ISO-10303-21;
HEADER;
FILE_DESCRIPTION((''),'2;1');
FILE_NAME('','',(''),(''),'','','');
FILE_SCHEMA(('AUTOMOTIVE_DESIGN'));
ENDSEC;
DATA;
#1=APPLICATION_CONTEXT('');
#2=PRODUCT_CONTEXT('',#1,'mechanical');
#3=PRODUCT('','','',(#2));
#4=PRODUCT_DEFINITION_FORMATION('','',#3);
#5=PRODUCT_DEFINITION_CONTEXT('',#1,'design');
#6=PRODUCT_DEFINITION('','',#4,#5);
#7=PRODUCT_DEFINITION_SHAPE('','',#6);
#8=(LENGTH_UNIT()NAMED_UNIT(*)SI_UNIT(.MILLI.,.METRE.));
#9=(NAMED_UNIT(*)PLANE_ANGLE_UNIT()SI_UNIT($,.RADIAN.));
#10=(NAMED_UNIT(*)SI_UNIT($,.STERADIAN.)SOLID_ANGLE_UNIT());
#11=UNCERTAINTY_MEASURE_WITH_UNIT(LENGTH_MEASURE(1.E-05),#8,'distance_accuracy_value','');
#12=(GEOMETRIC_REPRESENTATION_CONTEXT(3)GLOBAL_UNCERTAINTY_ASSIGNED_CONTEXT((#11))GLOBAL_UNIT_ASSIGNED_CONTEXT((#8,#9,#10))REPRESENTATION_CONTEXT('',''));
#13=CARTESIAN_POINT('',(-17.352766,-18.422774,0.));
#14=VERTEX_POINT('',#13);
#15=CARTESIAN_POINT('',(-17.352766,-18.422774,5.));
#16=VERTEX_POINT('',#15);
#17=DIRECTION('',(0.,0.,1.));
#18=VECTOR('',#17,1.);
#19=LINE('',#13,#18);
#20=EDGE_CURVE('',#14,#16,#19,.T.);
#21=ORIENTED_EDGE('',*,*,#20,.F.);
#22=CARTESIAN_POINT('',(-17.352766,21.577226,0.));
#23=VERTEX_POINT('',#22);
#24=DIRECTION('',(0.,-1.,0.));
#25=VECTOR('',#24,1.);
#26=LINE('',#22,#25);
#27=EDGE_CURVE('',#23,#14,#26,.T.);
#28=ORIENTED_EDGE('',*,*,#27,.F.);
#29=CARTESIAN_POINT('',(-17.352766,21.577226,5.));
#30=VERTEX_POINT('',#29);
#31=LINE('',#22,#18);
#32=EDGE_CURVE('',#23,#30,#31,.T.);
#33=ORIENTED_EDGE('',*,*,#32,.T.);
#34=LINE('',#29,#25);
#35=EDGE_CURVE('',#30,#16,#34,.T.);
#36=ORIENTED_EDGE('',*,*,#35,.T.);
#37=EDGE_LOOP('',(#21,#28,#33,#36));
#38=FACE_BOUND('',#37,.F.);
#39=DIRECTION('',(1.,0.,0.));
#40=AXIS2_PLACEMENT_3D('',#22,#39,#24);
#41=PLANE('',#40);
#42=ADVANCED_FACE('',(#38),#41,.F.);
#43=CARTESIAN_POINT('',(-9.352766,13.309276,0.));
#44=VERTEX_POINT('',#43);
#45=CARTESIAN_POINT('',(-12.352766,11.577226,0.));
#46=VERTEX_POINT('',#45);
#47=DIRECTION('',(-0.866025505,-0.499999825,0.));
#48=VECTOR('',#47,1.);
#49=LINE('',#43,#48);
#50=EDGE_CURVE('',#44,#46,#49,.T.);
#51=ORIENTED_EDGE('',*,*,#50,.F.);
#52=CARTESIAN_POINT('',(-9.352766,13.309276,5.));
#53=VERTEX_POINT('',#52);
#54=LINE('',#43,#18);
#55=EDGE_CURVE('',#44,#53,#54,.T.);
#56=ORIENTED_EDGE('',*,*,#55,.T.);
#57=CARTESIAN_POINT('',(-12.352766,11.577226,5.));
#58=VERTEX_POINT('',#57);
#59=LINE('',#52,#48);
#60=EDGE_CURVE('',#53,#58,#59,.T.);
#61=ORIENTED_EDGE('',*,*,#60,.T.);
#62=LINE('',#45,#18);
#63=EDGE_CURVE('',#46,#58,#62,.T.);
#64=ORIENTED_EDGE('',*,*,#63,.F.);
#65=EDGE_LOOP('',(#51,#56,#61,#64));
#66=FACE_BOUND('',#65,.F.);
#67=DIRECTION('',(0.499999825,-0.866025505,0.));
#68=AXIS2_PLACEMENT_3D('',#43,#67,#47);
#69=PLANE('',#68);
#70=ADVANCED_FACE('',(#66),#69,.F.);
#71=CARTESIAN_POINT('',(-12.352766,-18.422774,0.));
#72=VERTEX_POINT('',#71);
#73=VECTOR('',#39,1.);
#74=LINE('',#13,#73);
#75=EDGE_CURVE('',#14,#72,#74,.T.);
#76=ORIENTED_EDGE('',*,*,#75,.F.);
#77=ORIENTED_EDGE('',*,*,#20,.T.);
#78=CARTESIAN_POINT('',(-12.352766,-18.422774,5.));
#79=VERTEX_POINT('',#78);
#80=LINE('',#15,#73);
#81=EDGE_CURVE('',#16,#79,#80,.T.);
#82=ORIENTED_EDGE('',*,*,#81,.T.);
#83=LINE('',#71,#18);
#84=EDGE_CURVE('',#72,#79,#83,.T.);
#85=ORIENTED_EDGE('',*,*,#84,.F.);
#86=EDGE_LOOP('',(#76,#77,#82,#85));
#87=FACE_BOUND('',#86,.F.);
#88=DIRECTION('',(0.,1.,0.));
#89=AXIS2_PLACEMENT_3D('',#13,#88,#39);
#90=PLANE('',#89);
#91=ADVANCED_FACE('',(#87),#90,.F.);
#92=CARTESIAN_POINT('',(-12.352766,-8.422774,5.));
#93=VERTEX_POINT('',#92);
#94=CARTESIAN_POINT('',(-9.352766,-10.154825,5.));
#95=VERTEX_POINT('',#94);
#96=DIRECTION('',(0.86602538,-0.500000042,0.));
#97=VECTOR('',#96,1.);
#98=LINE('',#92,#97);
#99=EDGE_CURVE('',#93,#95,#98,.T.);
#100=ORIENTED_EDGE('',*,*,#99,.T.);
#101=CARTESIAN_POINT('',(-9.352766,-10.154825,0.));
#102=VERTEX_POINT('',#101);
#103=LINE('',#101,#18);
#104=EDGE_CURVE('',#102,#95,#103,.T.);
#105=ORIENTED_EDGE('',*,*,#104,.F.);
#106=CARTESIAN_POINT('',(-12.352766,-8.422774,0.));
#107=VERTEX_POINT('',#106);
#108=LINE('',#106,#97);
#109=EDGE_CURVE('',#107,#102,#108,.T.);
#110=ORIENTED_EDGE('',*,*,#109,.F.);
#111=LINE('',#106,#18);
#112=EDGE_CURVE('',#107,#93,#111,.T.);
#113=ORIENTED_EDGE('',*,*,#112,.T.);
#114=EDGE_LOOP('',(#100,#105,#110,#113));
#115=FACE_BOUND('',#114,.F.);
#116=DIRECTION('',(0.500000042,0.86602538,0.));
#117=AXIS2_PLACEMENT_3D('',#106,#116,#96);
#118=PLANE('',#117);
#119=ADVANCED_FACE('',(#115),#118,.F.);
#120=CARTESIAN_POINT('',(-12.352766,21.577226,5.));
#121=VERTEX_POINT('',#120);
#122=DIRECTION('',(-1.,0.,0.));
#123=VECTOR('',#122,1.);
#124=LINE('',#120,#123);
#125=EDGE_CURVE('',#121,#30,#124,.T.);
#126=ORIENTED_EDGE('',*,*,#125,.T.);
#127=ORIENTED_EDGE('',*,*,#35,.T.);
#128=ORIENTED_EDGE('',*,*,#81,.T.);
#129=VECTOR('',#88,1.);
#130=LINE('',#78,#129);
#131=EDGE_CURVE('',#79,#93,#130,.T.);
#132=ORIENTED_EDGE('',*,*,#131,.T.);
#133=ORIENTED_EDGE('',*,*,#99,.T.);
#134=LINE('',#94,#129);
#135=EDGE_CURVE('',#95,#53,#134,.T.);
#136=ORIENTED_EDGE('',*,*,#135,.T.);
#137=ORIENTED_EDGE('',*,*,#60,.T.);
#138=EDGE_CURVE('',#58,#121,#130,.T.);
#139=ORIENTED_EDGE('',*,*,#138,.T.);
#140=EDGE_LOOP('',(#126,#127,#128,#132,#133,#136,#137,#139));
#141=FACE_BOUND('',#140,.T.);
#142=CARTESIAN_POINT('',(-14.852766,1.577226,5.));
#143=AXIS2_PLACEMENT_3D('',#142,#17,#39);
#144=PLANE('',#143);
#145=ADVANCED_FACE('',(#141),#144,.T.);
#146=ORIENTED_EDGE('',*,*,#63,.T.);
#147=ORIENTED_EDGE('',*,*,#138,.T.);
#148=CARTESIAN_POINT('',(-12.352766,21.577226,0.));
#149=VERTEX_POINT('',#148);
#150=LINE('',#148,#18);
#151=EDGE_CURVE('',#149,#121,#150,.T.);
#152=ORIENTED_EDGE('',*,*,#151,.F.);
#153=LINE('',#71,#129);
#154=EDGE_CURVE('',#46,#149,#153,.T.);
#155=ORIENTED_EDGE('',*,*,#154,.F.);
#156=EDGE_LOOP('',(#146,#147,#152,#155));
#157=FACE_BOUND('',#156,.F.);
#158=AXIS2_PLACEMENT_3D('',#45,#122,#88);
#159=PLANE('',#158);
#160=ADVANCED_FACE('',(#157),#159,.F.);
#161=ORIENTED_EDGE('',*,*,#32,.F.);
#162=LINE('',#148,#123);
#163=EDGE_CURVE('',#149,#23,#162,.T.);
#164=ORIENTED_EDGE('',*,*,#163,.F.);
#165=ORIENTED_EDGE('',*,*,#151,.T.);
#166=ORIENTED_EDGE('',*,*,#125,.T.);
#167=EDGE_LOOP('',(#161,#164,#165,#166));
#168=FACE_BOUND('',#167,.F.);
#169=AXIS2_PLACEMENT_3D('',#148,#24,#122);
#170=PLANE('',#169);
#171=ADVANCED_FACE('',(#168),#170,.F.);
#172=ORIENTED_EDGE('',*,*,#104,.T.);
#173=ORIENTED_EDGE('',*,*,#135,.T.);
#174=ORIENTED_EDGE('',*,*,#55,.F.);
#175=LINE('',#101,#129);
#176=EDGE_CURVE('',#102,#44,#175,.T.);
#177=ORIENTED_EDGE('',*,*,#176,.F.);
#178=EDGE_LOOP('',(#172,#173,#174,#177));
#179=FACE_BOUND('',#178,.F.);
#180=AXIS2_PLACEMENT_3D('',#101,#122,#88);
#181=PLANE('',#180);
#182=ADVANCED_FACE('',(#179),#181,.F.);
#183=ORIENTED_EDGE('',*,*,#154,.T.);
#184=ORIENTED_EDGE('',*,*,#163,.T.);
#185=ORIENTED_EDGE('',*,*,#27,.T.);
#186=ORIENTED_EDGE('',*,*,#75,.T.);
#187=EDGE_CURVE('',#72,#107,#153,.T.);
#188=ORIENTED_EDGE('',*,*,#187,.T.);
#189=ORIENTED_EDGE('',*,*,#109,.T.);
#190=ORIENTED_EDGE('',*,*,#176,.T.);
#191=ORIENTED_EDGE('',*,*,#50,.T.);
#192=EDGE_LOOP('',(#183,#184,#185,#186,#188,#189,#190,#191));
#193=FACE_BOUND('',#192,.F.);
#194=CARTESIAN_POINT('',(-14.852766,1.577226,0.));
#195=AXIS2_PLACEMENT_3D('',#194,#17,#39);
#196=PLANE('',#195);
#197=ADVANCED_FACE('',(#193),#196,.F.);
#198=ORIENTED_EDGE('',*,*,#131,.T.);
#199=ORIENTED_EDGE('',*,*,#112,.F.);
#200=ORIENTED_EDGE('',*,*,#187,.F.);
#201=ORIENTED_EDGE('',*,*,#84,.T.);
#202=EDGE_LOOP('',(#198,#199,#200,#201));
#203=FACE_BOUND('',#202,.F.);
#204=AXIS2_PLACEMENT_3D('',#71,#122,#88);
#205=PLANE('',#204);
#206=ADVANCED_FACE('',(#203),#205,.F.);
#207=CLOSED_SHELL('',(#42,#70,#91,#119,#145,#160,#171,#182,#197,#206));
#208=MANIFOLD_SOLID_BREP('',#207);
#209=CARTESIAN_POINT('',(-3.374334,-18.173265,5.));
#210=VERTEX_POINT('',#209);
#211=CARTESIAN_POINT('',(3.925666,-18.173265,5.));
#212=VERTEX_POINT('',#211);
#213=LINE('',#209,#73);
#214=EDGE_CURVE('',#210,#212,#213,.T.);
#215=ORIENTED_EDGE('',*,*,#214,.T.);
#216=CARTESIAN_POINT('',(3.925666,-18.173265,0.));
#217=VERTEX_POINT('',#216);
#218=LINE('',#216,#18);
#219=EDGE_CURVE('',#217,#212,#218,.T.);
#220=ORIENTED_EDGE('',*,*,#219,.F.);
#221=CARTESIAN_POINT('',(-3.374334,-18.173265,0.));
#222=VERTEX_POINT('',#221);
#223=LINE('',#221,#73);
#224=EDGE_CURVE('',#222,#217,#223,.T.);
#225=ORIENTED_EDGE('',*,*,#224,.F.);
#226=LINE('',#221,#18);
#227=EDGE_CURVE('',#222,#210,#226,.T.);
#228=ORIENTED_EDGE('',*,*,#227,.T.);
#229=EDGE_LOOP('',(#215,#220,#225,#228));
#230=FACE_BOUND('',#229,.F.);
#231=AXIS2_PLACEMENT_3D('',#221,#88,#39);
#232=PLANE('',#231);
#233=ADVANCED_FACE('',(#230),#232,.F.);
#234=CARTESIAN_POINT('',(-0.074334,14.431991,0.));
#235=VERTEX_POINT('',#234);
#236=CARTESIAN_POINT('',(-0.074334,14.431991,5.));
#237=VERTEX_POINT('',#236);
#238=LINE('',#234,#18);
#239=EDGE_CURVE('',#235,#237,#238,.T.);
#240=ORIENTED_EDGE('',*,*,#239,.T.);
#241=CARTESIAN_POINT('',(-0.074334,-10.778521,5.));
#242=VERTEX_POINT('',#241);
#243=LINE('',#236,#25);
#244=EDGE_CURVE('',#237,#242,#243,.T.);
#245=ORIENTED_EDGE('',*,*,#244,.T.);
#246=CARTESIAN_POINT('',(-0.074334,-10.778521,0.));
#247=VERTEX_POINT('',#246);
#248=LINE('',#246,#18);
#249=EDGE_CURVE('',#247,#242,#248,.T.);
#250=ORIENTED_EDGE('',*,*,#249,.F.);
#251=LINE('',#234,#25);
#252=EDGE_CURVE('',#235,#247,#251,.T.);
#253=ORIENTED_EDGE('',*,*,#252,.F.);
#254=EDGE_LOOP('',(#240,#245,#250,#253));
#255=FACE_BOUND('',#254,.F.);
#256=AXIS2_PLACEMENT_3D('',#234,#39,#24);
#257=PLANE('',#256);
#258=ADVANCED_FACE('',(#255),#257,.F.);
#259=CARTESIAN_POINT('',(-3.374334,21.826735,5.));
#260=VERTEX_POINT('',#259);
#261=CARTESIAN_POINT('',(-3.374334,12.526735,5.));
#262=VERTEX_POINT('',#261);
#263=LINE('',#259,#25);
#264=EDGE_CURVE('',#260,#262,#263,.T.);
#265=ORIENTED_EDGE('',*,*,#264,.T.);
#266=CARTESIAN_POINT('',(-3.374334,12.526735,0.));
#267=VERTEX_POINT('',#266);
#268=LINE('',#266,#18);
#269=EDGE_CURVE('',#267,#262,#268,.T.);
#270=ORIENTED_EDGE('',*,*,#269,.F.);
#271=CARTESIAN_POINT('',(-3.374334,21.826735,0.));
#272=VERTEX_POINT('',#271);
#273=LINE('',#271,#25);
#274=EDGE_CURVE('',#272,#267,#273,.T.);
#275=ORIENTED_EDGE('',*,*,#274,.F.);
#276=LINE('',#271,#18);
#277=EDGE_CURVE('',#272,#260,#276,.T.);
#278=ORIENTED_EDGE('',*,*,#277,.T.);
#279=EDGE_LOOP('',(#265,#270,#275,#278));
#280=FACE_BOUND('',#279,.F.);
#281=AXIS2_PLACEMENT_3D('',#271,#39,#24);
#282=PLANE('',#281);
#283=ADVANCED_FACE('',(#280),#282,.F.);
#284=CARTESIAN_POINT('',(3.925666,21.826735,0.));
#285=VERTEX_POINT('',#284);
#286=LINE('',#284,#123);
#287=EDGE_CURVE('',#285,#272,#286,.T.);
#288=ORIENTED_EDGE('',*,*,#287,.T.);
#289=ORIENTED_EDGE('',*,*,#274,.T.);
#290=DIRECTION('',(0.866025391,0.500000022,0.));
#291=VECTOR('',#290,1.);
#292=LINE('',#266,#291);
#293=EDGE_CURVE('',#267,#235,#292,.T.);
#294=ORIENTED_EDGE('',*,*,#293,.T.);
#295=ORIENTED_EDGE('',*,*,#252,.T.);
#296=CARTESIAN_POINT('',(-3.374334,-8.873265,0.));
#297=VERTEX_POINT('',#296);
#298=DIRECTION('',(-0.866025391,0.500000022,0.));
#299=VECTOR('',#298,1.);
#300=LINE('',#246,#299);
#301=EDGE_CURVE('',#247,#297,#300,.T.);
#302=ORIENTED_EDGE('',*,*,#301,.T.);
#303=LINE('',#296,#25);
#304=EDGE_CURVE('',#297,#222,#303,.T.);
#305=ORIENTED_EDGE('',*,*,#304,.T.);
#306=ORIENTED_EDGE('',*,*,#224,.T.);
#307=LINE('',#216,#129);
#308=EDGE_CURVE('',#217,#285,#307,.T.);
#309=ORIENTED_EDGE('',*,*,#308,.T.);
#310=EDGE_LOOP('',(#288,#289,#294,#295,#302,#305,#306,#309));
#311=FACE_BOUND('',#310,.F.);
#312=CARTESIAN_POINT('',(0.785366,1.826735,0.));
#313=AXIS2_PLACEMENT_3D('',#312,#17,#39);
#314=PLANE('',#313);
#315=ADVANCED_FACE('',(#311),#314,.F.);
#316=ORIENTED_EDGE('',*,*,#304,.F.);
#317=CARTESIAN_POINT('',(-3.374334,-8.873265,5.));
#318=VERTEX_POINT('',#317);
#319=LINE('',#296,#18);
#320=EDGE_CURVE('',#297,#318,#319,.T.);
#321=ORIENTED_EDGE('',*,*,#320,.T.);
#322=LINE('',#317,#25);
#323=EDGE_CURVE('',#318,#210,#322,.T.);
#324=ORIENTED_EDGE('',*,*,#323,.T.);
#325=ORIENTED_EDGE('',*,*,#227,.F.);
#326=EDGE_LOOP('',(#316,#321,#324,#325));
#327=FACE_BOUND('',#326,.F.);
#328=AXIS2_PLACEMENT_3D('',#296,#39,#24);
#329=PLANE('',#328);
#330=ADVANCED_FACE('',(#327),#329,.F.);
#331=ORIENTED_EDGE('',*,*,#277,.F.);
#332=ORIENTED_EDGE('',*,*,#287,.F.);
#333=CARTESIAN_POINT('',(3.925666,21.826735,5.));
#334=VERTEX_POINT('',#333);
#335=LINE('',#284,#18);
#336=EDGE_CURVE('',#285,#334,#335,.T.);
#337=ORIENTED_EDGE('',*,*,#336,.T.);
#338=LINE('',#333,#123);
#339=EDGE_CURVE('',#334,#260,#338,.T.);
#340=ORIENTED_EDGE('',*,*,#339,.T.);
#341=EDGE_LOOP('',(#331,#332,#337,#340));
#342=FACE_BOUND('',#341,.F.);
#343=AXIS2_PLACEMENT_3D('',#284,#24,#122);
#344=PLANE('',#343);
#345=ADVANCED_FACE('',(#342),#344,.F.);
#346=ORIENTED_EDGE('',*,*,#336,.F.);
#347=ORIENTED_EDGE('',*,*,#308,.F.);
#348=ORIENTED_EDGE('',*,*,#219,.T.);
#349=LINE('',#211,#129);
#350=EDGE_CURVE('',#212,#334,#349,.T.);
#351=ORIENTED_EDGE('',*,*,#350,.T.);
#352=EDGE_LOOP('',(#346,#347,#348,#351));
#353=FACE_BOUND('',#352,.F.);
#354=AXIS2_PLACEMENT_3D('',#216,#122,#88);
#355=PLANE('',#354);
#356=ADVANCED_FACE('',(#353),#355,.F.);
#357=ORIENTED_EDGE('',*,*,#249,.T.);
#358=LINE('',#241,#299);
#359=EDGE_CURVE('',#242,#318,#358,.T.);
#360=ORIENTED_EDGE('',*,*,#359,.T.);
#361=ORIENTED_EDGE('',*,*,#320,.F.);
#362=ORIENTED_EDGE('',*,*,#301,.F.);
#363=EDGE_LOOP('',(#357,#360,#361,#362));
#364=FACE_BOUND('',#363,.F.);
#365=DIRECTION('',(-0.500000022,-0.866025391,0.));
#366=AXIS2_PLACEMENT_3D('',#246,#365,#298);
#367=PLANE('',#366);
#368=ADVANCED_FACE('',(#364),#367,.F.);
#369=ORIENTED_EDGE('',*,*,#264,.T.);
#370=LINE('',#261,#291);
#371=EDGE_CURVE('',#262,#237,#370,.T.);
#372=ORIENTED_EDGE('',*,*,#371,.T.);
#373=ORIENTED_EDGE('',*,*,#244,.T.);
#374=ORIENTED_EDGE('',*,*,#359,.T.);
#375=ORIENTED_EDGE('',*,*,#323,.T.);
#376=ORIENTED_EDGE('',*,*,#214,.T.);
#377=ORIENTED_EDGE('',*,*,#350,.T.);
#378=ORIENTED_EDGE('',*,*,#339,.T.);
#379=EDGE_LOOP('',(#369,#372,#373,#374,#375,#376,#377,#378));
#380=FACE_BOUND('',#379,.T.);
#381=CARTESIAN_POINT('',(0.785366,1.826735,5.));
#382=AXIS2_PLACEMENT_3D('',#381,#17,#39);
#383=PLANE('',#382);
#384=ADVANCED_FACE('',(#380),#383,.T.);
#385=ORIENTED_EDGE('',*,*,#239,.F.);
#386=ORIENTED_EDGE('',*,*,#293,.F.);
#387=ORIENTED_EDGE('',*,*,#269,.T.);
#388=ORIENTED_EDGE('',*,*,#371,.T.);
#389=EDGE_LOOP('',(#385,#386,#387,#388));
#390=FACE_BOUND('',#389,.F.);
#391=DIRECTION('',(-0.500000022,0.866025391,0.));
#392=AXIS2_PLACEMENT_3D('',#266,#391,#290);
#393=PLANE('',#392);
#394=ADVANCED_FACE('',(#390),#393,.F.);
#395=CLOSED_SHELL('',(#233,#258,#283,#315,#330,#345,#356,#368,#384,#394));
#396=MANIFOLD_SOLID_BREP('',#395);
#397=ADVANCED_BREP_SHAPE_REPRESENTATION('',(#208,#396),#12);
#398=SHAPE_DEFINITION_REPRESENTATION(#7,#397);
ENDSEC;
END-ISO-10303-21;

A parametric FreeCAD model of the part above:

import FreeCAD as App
import Part
import Sketcher
Q = App.Units.Quantity


def add_polygon(sketch, points):
    """Adds a closed chain of lines whose ends are joined by coincident constraints."""
    first, n = sketch.GeometryCount, len(points)
    for a, b in zip(points, points[1:] + points[:1]):
        sketch.addGeometry(Part.LineSegment(App.Vector(*a, 0), App.Vector(*b, 0)), False)
    for i in range(n):
        sketch.addConstraint(Sketcher.Constraint("Coincident", first + i, 2, first + (i + 1) % n, 1))

doc = App.newDocument("Part")
body = doc.addObject("PartDesign::Body", "Body")
body.AllowCompound = True

sketch1 = body.newObject("Sketcher::SketchObject", "Sketch")
sketch1.AttachmentSupport = (doc.getObject("XY_Plane"), [""])
sketch1.MapMode = "FlatFace"
add_polygon(sketch1, [(-12.4, 21.6), (-17.4, 21.6), (-17.4, -18.4), (-12.4, -18.4), (-12.4, -8.4), (-9.4, -10.2), (-9.4, 13.3), (-12.4, 11.6)])
add_polygon(sketch1, [(3.9, 21.8), (-3.4, 21.8), (-3.4, 12.5), (-0.1, 14.4), (-0.1, -10.8), (-3.4, -8.9), (-3.4, -18.2), (3.9, -18.2)])
sketch1.addConstraint([
    Sketcher.Constraint("Horizontal", 0),
    Sketcher.Constraint("Vertical", 1),
    Sketcher.Constraint("Horizontal", 2),
    Sketcher.Constraint("Vertical", 3),
    Sketcher.Constraint("Vertical", 5),
    Sketcher.Constraint("Vertical", 7),
    Sketcher.Constraint("Horizontal", 8),
    Sketcher.Constraint("Vertical", 9),
    Sketcher.Constraint("Vertical", 11),
    Sketcher.Constraint("Vertical", 13),
    Sketcher.Constraint("Horizontal", 14),
    Sketcher.Constraint("Vertical", 15),
    Sketcher.Constraint("Parallel", 6, 10),
    Sketcher.Constraint("Parallel", 4, 12),
    Sketcher.Constraint("Vertical", 3, 2, 6, 2),
    Sketcher.Constraint("Vertical", 9, 2, 12, 2),
    Sketcher.Constraint("Equal", 3, 7),
    Sketcher.Constraint("Equal", 9, 13),
    Sketcher.Constraint("Equal", 1, 15),
    Sketcher.Constraint("Equal", 4, 6),
    Sketcher.Constraint("DistanceX", 0, 2, 0, 1, 5.0),
    Sketcher.Constraint("DistanceY", 1, 2, 1, 1, 40.0),
    Sketcher.Constraint("DistanceY", 3, 1, 3, 2, 10.0),
    Sketcher.Constraint("Angle", 4, Q("-30.000003 deg")),
    Sketcher.Constraint("DistanceX", 8, 2, 8, 1, 7.3),
    Sketcher.Constraint("DistanceY", 9, 2, 9, 1, 9.3),
    Sketcher.Constraint("DistanceX", 3, 2, 4, 2, 3.0),
    Sketcher.Constraint("DistanceX", 11, 2, 14, 2, 4.0),
    Sketcher.Constraint("DistanceY", -1, 1, 10, 2, 14.431991),
    Sketcher.Constraint("DistanceY", 7, 2, 8, 2, 0.249509),
    Sketcher.Constraint("DistanceX", 0, 2, 8, 2, 13.978432),
    Sketcher.Constraint("DistanceX", 0, 2, -1, 1, 17.352766),
])
pad1 = body.newObject("PartDesign::Pad", "Pad")
pad1.Profile = sketch1
pad1.Length = 5

doc.recompute()
